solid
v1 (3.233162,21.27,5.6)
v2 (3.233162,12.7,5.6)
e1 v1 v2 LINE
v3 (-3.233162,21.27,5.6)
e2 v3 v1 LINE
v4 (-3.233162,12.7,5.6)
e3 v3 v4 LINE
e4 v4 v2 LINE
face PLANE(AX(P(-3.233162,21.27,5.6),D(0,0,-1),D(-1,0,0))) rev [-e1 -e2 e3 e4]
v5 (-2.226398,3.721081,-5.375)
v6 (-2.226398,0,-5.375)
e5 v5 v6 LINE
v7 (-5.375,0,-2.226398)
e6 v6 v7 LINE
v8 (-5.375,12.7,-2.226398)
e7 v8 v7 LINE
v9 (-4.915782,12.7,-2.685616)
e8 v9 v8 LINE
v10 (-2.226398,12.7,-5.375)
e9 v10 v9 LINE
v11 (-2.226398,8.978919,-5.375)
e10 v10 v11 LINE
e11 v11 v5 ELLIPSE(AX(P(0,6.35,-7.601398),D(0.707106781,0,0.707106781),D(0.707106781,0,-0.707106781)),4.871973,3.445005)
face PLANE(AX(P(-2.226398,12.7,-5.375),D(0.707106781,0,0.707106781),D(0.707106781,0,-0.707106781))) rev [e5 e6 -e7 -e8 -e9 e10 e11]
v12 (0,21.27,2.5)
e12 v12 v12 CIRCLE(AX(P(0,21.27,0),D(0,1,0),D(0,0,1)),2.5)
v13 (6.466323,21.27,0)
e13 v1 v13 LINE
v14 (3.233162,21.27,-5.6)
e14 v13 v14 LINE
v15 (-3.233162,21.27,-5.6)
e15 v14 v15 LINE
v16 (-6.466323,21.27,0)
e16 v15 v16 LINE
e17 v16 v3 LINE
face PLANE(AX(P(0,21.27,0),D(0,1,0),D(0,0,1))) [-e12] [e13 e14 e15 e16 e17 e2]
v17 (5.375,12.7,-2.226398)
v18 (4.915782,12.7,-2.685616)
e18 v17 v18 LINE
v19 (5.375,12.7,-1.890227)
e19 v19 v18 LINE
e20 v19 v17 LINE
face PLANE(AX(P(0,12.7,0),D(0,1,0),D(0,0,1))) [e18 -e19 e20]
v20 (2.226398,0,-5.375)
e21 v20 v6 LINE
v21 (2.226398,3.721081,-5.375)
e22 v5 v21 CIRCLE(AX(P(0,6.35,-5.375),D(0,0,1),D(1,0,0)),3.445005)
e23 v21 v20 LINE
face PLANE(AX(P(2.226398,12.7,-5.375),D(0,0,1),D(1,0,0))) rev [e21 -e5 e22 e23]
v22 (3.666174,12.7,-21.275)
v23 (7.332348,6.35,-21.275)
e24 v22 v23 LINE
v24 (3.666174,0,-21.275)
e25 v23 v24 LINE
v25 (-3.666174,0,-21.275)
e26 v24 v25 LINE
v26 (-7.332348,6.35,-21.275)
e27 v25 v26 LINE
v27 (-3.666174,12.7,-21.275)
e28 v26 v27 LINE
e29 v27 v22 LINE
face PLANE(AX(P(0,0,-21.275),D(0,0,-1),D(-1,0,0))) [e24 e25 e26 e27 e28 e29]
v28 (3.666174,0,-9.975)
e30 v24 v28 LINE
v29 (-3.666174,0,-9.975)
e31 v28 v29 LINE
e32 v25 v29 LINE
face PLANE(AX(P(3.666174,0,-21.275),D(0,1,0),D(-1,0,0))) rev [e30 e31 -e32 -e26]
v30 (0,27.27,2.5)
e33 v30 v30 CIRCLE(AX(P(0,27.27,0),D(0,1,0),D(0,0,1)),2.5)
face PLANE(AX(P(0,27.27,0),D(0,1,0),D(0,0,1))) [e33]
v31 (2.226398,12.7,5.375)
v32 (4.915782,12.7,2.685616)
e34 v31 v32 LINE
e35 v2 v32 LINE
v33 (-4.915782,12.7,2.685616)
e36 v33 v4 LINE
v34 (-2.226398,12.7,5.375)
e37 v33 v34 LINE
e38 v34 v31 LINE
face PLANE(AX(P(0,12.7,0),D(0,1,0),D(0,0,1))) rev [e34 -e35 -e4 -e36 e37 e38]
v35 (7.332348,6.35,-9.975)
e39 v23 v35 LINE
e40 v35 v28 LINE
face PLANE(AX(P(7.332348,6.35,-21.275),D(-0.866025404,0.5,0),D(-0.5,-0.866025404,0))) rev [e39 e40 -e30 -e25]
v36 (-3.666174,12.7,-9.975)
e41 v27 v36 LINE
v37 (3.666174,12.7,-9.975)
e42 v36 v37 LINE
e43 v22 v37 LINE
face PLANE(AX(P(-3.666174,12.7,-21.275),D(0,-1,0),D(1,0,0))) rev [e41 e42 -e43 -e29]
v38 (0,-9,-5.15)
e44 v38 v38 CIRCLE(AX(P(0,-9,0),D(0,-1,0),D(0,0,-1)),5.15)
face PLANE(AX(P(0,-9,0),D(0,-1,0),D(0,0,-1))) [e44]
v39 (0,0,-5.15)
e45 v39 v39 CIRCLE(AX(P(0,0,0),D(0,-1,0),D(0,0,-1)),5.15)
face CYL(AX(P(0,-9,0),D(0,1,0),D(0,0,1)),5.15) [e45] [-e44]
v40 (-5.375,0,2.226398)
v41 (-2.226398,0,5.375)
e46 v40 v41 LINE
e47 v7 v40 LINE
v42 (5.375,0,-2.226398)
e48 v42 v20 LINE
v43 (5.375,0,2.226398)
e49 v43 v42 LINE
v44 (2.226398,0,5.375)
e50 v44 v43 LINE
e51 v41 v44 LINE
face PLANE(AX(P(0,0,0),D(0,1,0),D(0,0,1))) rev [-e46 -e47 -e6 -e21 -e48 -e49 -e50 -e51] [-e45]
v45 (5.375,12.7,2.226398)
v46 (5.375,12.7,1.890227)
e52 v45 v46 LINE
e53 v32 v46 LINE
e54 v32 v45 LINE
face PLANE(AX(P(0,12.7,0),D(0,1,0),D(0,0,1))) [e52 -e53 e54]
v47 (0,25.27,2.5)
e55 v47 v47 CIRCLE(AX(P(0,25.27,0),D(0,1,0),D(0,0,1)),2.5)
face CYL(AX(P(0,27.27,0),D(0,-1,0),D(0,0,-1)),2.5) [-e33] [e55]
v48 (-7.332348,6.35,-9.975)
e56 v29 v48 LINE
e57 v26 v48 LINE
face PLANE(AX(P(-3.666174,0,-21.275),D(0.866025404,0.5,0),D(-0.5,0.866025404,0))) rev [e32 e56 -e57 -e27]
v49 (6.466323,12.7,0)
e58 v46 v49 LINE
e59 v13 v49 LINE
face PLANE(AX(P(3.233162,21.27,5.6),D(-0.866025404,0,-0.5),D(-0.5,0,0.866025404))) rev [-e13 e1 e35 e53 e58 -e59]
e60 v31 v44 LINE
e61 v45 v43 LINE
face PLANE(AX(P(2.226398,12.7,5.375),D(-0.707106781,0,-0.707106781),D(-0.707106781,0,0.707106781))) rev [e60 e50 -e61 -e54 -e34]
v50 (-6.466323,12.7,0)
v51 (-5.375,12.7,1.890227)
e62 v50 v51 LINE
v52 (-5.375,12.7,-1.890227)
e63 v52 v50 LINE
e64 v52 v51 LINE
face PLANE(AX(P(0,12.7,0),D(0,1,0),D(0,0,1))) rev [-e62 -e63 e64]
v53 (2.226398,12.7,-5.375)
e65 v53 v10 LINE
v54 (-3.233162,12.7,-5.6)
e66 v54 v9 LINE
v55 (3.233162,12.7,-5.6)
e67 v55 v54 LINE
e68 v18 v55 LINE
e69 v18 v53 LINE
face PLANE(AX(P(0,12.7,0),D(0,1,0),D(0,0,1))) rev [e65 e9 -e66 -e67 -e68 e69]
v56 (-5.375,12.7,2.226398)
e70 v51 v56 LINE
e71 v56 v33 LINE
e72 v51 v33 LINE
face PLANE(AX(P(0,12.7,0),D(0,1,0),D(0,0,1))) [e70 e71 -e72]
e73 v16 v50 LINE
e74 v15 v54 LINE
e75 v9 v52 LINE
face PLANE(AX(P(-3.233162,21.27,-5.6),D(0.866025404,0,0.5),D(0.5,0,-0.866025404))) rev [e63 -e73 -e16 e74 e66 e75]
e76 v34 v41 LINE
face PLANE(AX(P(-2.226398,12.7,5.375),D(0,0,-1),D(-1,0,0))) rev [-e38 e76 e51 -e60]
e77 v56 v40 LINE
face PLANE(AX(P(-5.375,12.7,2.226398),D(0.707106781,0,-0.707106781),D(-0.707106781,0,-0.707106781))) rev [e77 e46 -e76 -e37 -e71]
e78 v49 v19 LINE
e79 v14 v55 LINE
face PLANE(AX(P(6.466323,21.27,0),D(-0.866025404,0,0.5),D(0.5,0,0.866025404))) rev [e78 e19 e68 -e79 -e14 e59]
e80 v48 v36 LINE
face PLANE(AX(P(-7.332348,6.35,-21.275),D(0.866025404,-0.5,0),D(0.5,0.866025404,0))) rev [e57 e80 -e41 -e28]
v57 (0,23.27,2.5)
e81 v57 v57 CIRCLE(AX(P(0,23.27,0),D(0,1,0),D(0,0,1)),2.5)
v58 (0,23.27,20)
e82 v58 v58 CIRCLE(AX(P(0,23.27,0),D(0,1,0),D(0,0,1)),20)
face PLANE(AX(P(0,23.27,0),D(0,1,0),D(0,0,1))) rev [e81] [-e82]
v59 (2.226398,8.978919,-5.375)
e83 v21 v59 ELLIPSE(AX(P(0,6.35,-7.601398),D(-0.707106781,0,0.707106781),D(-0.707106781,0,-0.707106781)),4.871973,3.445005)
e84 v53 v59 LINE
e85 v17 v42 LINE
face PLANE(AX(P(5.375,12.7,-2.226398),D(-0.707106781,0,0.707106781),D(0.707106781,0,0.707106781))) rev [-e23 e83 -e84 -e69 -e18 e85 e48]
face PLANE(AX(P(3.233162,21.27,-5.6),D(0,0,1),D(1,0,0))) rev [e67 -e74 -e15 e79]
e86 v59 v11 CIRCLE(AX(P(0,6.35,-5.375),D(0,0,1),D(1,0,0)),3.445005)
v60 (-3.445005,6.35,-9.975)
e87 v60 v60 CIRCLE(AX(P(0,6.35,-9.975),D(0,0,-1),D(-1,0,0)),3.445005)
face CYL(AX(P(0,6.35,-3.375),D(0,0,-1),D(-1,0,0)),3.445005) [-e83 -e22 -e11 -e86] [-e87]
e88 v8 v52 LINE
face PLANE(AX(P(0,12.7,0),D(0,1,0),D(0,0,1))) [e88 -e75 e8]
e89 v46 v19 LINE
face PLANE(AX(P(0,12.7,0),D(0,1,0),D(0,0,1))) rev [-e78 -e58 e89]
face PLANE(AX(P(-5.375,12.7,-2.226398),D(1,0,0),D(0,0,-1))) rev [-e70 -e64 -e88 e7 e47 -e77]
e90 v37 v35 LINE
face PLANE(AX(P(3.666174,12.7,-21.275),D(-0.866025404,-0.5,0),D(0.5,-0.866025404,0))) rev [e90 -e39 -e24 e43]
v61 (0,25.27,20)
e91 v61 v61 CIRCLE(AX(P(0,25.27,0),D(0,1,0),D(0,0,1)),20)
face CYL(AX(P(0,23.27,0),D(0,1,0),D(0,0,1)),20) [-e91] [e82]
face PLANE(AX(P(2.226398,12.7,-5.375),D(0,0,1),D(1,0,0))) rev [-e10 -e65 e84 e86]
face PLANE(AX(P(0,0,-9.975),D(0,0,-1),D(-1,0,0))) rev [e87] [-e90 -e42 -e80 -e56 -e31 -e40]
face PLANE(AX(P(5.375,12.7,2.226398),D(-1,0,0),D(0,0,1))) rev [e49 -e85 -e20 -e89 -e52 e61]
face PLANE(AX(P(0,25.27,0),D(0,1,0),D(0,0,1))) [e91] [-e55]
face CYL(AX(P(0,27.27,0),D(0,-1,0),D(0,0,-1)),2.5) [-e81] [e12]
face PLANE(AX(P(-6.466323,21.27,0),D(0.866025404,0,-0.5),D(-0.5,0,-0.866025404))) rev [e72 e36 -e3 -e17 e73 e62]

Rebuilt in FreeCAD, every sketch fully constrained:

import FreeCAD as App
import Part
import Sketcher
from FreeCAD import Vector
Q = App.Units.Quantity


def add_polygon(sketch, points):
    """Adds a closed chain of lines whose ends are joined by coincident constraints."""
    first, n = sketch.GeometryCount, len(points)
    for a, b in zip(points, points[1:] + points[:1]):
        sketch.addGeometry(Part.LineSegment(App.Vector(*a, 0), App.Vector(*b, 0)), False)
    for i in range(n):
        sketch.addConstraint(Sketcher.Constraint("Coincident", first + i, 2, first + (i + 1) % n, 1))

doc = App.newDocument("Part")
params = doc.addObject("Spreadsheet::Sheet", "Params")
for row, (alias, value) in enumerate([
    ("pad1_length", "12.7 mm"),
    ("pad2_length", "4.6 mm"),
    ("pad2_length2", "2 mm"),
    ("pad3_length", "11.3 mm"),
    ("sketch4_diameter", "10.3 mm"),
    ("pad4_length", "9 mm"),
    ("pad5_length", "8.57 mm"),
    ("sketch6_diameter", "5 mm"),
    ("pad6_length", "6 mm"),
    ("sketch7_diameter", "40 mm"),
    ("pad7_length", "2 mm"),
], start=1):
    params.set(f"A{row}", alias)
    params.set(f"B{row}", "=" + value)
    params.setAlias(f"B{row}", alias)

body = doc.addObject("PartDesign::Body", "Body")

# Sketch on XZ plane
sketch1 = body.newObject("Sketcher::SketchObject", "Sketch")
sketch1.AttachmentSupport = (doc.getObject("XZ_Plane"), [""])
sketch1.MapMode = "FlatFace"
add_polygon(sketch1, [(-2.2, 5.4), (2.2, 5.4), (5.4, 2.2), (5.4, -2.2), (2.2, -5.4), (-2.2, -5.4), (-5.4, -2.2), (-5.4, 2.2)])  # lines 0-7
sketch1.addConstraint([
    Sketcher.Constraint("Horizontal", 0),
    Sketcher.Constraint("Vertical", 2),
    Sketcher.Constraint("Horizontal", 4),
    Sketcher.Constraint("Vertical", 6),
    Sketcher.Constraint("Symmetric", 0, 2, 4, 2, -1, 1),
    Sketcher.Constraint("Symmetric", 1, 2, 5, 2, -1, 1),
    Sketcher.Constraint("Perpendicular", 1, 3),
    Sketcher.Constraint("Perpendicular", 5, 7),
    Sketcher.Constraint("Horizontal", 2, 2, 5, 2),
    Sketcher.Constraint("Horizontal", 1, 2, 6, 2),
    Sketcher.Constraint("Vertical", 0, 2, 3, 2),
    Sketcher.Constraint("Equal", 4, 2),
    Sketcher.Constraint("DistanceY", 3, 2, 0, 2, 10.75),
    Sketcher.Constraint("DistanceX", 0, 1, 0, 2, 4.452796),
])
pad1 = body.newObject("PartDesign::Pad", "Pad")
pad1.Profile = sketch1
pad1.setExpression("Length", "Params.pad1_length")
pad1.Reversed = True

# Sketch on XY plane
sketch2 = body.newObject("Sketcher::SketchObject", "Sketch001")
sketch2.AttachmentSupport = (doc.getObject("XY_Plane"), [""])
sketch2.MapMode = "FlatFace"
sketch2.AttachmentOffset = App.Placement(Vector(0, 0, -5.375), App.Rotation())
sketch2.addGeometry(Part.Circle(Vector(0, 6.3, 0), Vector(0, 0, 1), 3.4), False)
sketch2.addConstraint([
    Sketcher.Constraint("PointOnObject", 0, 3, -2),
    Sketcher.Constraint("Diameter", 0, 6.890011),
    Sketcher.Constraint("DistanceY", -1, 1, 0, 3, 6.35),
])
pad2 = body.newObject("PartDesign::Pad", "Pad001")
pad2.Profile = sketch2
pad2.Type = "TwoLengths"
pad2.setExpression("Length", "Params.pad2_length")
pad2.setExpression("Length2", "Params.pad2_length2")
pad2.Reversed = True

# Sketch on XY plane
sketch3 = body.newObject("Sketcher::SketchObject", "Sketch002")
sketch3.AttachmentSupport = (doc.getObject("XY_Plane"), [""])
sketch3.MapMode = "FlatFace"
sketch3.AttachmentOffset = App.Placement(Vector(0, 0, -9.975), App.Rotation())
add_polygon(sketch3, [(-7, 6), (-4, 13), (4, 13), (7, 6), (4, 0), (-4, 0)])  # lines 0-5
sketch3.addConstraint([
    Sketcher.Constraint("Horizontal", 1),
    Sketcher.Constraint("Horizontal", 4),
    Sketcher.Constraint("Symmetric", 3, 2, 4, 2, -1, 1),
    Sketcher.Constraint("Symmetric", 2, 2, 5, 2, -2),
    Sketcher.Constraint("Parallel", 0, 3),
    Sketcher.Constraint("Parallel", 2, 5),
    Sketcher.Constraint("Vertical", 1, 2, 3, 2),
    Sketcher.Constraint("Angle", 0, Q("60 deg")),
    Sketcher.Constraint("DistanceY", -1, 1, 0, 2, 12.7),
    Sketcher.Constraint("DistanceX", 1, 1, 1, 2, 7.332348),
])
pad3 = body.newObject("PartDesign::Pad", "Pad002")
pad3.Profile = sketch3
pad3.setExpression("Length", "Params.pad3_length")
pad3.Reversed = True

# Sketch on XZ plane
sketch4 = body.newObject("Sketcher::SketchObject", "Sketch003")
sketch4.AttachmentSupport = (doc.getObject("XZ_Plane"), [""])
sketch4.MapMode = "FlatFace"
sketch4.addGeometry(Part.Circle(Vector(0, 0, 0), Vector(0, 0, 1), 5), False)
sketch4.addConstraint([
    Sketcher.Constraint("Coincident", 0, 3, -1, 1),
    Sketcher.Constraint("Diameter", 0, 10.3),
])
sketch4.setExpression("Constraints[1]", "Params.sketch4_diameter")
pad4 = body.newObject("PartDesign::Pad", "Pad003")
pad4.Profile = sketch4
pad4.setExpression("Length", "Params.pad4_length")

# Sketch on XZ plane
sketch5 = body.newObject("Sketcher::SketchObject", "Sketch004")
sketch5.AttachmentSupport = (doc.getObject("XZ_Plane"), [""])
sketch5.MapMode = "FlatFace"
sketch5.AttachmentOffset = App.Placement(Vector(0, 0, -12.7), App.Rotation())
add_polygon(sketch5, [(6, 0), (3, -6), (-3, -6), (-6, 0), (-3, 6), (3, 6)])  # lines 0-5
sketch5.addConstraint([
    Sketcher.Constraint("Horizontal", 1),
    Sketcher.Constraint("Horizontal", 4),
    Sketcher.Constraint("Symmetric", 0, 2, 3, 2, -1, 1),
    Sketcher.Constraint("Symmetric", 2, 2, 5, 2, -1, 1),
    Sketcher.Constraint("PointOnObject", 2, 2, -1),
    Sketcher.Constraint("Parallel", 2, 5),
    Sketcher.Constraint("Vertical", 1, 2, 3, 2),
    Sketcher.Constraint("Angle", 0, Q("-120 deg")),
    Sketcher.Constraint("DistanceY", 0, 2, -1, 1, 5.6),
    Sketcher.Constraint("DistanceX", 1, 2, 1, 1, 6.466323),
])
pad5 = body.newObject("PartDesign::Pad", "Pad004")
pad5.Profile = sketch5
pad5.setExpression("Length", "Params.pad5_length")
pad5.Reversed = True

# Sketch on XZ plane
sketch6 = body.newObject("Sketcher::SketchObject", "Sketch005")
sketch6.AttachmentSupport = (doc.getObject("XZ_Plane"), [""])
sketch6.MapMode = "FlatFace"
sketch6.AttachmentOffset = App.Placement(Vector(0, 0, -21.27), App.Rotation())
sketch6.addGeometry(Part.Circle(Vector(0, 0, 0), Vector(0, 0, 1), 2.5), False)
sketch6.addConstraint([
    Sketcher.Constraint("Coincident", 0, 3, -1, 1),
    Sketcher.Constraint("Diameter", 0, 5.0),
])
sketch6.setExpression("Constraints[1]", "Params.sketch6_diameter")
pad6 = body.newObject("PartDesign::Pad", "Pad005")
pad6.Profile = sketch6
pad6.setExpression("Length", "Params.pad6_length")
pad6.Reversed = True

# Sketch on XZ plane
sketch7 = body.newObject("Sketcher::SketchObject", "Sketch006")
sketch7.AttachmentSupport = (doc.getObject("XZ_Plane"), [""])
sketch7.MapMode = "FlatFace"
sketch7.AttachmentOffset = App.Placement(Vector(0, 0, -25.27), App.Rotation())
sketch7.addGeometry(Part.Circle(Vector(0, 0, 0), Vector(0, 0, 1), 20), False)
sketch7.addConstraint([
    Sketcher.Constraint("Coincident", 0, 3, -1, 1),
    Sketcher.Constraint("Diameter", 0, 40.0),
])
sketch7.setExpression("Constraints[1]", "Params.sketch7_diameter")
pad7 = body.newObject("PartDesign::Pad", "Pad006")
pad7.Profile = sketch7
pad7.setExpression("Length", "Params.pad7_length")

doc.recompute()
